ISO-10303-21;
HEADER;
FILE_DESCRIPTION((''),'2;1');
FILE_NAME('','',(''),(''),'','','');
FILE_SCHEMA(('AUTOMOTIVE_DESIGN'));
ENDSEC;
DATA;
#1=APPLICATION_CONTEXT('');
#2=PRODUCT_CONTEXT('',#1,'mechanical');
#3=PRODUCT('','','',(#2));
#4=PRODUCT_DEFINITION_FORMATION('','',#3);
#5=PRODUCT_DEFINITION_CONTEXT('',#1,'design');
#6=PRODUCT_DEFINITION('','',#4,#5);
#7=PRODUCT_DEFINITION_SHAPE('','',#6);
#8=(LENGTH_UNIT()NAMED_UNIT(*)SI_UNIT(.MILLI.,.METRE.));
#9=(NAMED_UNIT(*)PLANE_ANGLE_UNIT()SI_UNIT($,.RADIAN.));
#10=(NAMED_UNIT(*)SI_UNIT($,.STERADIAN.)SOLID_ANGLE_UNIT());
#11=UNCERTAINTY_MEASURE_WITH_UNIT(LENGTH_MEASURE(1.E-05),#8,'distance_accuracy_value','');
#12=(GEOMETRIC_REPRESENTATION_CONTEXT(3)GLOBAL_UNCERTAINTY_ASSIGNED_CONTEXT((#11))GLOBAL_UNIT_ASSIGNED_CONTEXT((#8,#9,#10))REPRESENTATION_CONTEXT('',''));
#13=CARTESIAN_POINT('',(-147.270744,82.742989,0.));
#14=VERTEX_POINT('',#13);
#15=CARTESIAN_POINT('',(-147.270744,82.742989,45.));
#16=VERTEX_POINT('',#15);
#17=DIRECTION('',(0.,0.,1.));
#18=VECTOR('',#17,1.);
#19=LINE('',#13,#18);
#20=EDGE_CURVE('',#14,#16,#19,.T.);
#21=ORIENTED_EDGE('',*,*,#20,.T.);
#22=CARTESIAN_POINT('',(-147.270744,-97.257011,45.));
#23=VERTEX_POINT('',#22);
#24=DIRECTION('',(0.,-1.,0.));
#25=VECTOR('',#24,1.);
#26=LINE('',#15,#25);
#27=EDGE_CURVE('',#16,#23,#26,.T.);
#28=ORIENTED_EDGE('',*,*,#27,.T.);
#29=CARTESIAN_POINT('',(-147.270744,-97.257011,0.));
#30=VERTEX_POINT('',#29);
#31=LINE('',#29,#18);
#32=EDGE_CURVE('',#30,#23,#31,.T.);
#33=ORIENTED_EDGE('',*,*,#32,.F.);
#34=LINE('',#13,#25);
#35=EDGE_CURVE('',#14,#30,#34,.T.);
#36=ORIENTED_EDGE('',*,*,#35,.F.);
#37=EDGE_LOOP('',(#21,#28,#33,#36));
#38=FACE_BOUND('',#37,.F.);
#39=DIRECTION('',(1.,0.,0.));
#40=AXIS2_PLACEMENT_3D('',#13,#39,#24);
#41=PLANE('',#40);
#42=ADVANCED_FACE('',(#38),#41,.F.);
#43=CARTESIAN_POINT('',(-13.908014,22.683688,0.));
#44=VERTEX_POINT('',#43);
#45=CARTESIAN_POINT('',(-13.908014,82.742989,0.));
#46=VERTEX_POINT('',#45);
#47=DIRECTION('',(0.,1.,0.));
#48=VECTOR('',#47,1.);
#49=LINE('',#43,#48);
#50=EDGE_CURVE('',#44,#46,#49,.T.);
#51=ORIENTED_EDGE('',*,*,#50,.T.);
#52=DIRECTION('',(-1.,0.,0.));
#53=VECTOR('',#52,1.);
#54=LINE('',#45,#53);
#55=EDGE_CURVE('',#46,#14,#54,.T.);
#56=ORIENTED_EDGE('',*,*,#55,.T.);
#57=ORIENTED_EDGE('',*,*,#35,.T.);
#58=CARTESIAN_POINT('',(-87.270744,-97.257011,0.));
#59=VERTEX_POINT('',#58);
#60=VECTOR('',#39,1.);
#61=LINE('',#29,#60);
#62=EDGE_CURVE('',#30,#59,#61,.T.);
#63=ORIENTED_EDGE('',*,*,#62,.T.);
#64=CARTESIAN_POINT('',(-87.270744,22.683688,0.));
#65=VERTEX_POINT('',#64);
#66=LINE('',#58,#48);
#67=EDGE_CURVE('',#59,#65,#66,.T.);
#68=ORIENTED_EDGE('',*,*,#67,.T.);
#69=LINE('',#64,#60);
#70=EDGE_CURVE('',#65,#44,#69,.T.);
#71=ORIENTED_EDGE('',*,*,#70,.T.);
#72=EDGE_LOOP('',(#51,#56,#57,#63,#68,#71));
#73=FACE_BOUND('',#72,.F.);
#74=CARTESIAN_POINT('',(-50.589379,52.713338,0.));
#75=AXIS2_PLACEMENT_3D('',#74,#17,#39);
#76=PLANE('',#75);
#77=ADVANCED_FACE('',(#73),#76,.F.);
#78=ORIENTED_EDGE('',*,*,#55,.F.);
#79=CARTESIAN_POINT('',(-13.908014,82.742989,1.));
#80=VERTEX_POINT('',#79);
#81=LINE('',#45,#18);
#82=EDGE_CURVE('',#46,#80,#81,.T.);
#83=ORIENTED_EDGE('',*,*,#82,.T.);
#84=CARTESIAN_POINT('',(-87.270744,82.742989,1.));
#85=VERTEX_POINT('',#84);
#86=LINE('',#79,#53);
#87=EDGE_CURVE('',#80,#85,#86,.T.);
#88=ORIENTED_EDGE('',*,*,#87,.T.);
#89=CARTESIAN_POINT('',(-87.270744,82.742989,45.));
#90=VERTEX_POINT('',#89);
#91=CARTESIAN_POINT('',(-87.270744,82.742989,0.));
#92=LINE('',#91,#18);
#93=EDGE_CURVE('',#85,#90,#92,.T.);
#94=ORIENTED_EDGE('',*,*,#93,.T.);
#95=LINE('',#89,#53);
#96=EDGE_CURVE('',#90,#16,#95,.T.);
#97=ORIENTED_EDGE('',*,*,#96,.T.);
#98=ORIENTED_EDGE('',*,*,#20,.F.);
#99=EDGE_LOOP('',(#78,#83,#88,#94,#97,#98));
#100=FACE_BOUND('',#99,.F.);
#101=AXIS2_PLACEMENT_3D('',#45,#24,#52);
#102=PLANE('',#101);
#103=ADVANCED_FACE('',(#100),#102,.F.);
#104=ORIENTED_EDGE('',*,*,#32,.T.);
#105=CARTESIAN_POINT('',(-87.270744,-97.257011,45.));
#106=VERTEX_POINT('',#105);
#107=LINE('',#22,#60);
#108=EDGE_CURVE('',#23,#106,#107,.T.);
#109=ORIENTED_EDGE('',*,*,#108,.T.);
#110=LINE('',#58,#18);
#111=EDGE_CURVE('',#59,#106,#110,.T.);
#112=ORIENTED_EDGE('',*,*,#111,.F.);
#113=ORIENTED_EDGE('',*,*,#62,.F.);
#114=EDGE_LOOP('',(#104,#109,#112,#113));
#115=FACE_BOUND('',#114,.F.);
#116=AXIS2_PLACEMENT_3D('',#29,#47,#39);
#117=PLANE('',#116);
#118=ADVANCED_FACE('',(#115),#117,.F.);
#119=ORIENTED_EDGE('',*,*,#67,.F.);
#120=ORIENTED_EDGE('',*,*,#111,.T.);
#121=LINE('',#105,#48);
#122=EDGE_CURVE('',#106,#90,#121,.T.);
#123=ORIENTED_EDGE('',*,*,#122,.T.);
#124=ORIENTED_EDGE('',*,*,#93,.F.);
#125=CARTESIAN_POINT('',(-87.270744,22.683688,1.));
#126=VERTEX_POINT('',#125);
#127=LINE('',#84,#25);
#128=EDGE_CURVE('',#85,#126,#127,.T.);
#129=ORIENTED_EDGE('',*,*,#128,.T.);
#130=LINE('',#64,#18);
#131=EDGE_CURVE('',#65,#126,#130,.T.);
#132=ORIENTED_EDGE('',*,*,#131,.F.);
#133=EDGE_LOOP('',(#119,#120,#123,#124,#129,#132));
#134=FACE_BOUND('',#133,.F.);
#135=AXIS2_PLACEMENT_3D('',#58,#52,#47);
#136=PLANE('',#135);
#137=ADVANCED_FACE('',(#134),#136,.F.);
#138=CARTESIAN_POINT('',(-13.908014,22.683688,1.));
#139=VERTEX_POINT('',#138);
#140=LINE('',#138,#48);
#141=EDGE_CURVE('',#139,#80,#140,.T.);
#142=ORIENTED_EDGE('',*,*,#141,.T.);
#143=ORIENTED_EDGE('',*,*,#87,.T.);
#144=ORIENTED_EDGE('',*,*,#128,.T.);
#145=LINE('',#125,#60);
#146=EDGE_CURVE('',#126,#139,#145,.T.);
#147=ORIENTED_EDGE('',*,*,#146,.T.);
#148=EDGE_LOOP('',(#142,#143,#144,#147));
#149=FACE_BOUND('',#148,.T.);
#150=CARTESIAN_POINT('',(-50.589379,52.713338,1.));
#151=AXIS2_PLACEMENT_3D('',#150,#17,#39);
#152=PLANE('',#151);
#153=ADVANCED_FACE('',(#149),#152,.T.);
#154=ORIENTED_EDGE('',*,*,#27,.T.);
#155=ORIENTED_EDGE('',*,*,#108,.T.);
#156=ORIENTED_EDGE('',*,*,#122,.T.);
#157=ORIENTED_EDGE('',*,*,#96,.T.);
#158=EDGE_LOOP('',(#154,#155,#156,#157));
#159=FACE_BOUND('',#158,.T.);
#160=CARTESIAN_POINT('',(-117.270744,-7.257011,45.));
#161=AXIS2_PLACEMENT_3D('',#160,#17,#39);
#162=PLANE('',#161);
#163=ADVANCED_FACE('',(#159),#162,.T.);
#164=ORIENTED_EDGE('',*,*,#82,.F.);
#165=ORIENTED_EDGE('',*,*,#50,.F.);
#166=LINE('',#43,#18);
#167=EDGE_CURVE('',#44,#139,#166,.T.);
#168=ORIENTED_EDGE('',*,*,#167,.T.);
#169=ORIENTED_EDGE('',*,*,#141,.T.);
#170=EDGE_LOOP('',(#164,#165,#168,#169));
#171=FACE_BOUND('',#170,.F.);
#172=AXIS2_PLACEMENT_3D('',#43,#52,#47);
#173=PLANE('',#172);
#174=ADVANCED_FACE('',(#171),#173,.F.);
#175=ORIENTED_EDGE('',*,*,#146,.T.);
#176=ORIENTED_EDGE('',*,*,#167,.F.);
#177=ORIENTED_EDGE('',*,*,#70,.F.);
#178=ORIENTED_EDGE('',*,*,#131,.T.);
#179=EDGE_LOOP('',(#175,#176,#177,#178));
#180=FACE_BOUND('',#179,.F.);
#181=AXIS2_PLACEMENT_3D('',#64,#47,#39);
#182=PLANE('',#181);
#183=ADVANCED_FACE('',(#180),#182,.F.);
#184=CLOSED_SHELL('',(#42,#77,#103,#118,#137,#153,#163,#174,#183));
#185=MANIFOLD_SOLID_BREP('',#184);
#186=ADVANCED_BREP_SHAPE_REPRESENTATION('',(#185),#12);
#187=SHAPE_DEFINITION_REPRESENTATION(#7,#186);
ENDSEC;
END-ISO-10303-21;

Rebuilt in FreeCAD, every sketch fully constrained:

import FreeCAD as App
import Part
import Sketcher
Q = App.Units.Quantity


def add_polygon(sketch, points):
    """Adds a closed chain of lines whose ends are joined by coincident constraints."""
    first, n = sketch.GeometryCount, len(points)
    for a, b in zip(points, points[1:] + points[:1]):
        sketch.addGeometry(Part.LineSegment(App.Vector(*a, 0), App.Vector(*b, 0)), False)
    for i in range(n):
        sketch.addConstraint(Sketcher.Constraint("Coincident", first + i, 2, first + (i + 1) % n, 1))

doc = App.newDocument("Part")
body = doc.addObject("PartDesign::Body", "Body")

# Sketch on XY plane
sketch1 = body.newObject("Sketcher::SketchObject", "Sketch")
sketch1.AttachmentSupport = (doc.getObject("XY_Plane"), [""])
sketch1.MapMode = "FlatFace"
add_polygon(sketch1, [(-87, 83), (-147, 83), (-147, -97), (-87, -97)])  # lines 0-3
sketch1.addConstraint([
    Sketcher.Constraint("Horizontal", 0),
    Sketcher.Constraint("Vertical", 1),
    Sketcher.Constraint("Horizontal", 2),
    Sketcher.Constraint("Vertical", 3),
    Sketcher.Constraint("DistanceX", 0, 2, 0, 1, Q("60 mm")),
    Sketcher.Constraint("DistanceY", 1, 2, 1, 1, Q("180 mm")),
    Sketcher.Constraint("DistanceY", -1, 1, 0, 2, Q("82.742989 mm")),
    Sketcher.Constraint("DistanceX", 0, 2, -1, 1, Q("147.270744 mm")),
])
pad1 = body.newObject("PartDesign::Pad", "Pad")
pad1.Profile = sketch1
pad1.Length = 45

# Sketch on XY plane
sketch2 = body.newObject("Sketcher::SketchObject", "Sketch001")
sketch2.AttachmentSupport = (doc.getObject("XY_Plane"), [""])
sketch2.MapMode = "FlatFace"
add_polygon(sketch2, [(-14, 83), (-87, 83), (-87, 23), (-14, 23)])  # lines 0-3
sketch2.addConstraint([
    Sketcher.Constraint("Horizontal", 0),
    Sketcher.Constraint("Vertical", 1),
    Sketcher.Constraint("Horizontal", 2),
    Sketcher.Constraint("Vertical", 3),
    Sketcher.Constraint("DistanceY", 1, 2, 1, 1, Q("60.059301 mm")),
    Sketcher.Constraint("DistanceX", 0, 2, 0, 1, Q("73.36273 mm")),
    Sketcher.Constraint("DistanceY", -1, 1, 0, 2, Q("82.742989 mm")),
    Sketcher.Constraint("DistanceX", 0, 2, -1, 1, Q("87.270744 mm")),
])
pad2 = body.newObject("PartDesign::Pad", "Pad001")
pad2.Profile = sketch2
pad2.Length = 1

doc.recompute()
